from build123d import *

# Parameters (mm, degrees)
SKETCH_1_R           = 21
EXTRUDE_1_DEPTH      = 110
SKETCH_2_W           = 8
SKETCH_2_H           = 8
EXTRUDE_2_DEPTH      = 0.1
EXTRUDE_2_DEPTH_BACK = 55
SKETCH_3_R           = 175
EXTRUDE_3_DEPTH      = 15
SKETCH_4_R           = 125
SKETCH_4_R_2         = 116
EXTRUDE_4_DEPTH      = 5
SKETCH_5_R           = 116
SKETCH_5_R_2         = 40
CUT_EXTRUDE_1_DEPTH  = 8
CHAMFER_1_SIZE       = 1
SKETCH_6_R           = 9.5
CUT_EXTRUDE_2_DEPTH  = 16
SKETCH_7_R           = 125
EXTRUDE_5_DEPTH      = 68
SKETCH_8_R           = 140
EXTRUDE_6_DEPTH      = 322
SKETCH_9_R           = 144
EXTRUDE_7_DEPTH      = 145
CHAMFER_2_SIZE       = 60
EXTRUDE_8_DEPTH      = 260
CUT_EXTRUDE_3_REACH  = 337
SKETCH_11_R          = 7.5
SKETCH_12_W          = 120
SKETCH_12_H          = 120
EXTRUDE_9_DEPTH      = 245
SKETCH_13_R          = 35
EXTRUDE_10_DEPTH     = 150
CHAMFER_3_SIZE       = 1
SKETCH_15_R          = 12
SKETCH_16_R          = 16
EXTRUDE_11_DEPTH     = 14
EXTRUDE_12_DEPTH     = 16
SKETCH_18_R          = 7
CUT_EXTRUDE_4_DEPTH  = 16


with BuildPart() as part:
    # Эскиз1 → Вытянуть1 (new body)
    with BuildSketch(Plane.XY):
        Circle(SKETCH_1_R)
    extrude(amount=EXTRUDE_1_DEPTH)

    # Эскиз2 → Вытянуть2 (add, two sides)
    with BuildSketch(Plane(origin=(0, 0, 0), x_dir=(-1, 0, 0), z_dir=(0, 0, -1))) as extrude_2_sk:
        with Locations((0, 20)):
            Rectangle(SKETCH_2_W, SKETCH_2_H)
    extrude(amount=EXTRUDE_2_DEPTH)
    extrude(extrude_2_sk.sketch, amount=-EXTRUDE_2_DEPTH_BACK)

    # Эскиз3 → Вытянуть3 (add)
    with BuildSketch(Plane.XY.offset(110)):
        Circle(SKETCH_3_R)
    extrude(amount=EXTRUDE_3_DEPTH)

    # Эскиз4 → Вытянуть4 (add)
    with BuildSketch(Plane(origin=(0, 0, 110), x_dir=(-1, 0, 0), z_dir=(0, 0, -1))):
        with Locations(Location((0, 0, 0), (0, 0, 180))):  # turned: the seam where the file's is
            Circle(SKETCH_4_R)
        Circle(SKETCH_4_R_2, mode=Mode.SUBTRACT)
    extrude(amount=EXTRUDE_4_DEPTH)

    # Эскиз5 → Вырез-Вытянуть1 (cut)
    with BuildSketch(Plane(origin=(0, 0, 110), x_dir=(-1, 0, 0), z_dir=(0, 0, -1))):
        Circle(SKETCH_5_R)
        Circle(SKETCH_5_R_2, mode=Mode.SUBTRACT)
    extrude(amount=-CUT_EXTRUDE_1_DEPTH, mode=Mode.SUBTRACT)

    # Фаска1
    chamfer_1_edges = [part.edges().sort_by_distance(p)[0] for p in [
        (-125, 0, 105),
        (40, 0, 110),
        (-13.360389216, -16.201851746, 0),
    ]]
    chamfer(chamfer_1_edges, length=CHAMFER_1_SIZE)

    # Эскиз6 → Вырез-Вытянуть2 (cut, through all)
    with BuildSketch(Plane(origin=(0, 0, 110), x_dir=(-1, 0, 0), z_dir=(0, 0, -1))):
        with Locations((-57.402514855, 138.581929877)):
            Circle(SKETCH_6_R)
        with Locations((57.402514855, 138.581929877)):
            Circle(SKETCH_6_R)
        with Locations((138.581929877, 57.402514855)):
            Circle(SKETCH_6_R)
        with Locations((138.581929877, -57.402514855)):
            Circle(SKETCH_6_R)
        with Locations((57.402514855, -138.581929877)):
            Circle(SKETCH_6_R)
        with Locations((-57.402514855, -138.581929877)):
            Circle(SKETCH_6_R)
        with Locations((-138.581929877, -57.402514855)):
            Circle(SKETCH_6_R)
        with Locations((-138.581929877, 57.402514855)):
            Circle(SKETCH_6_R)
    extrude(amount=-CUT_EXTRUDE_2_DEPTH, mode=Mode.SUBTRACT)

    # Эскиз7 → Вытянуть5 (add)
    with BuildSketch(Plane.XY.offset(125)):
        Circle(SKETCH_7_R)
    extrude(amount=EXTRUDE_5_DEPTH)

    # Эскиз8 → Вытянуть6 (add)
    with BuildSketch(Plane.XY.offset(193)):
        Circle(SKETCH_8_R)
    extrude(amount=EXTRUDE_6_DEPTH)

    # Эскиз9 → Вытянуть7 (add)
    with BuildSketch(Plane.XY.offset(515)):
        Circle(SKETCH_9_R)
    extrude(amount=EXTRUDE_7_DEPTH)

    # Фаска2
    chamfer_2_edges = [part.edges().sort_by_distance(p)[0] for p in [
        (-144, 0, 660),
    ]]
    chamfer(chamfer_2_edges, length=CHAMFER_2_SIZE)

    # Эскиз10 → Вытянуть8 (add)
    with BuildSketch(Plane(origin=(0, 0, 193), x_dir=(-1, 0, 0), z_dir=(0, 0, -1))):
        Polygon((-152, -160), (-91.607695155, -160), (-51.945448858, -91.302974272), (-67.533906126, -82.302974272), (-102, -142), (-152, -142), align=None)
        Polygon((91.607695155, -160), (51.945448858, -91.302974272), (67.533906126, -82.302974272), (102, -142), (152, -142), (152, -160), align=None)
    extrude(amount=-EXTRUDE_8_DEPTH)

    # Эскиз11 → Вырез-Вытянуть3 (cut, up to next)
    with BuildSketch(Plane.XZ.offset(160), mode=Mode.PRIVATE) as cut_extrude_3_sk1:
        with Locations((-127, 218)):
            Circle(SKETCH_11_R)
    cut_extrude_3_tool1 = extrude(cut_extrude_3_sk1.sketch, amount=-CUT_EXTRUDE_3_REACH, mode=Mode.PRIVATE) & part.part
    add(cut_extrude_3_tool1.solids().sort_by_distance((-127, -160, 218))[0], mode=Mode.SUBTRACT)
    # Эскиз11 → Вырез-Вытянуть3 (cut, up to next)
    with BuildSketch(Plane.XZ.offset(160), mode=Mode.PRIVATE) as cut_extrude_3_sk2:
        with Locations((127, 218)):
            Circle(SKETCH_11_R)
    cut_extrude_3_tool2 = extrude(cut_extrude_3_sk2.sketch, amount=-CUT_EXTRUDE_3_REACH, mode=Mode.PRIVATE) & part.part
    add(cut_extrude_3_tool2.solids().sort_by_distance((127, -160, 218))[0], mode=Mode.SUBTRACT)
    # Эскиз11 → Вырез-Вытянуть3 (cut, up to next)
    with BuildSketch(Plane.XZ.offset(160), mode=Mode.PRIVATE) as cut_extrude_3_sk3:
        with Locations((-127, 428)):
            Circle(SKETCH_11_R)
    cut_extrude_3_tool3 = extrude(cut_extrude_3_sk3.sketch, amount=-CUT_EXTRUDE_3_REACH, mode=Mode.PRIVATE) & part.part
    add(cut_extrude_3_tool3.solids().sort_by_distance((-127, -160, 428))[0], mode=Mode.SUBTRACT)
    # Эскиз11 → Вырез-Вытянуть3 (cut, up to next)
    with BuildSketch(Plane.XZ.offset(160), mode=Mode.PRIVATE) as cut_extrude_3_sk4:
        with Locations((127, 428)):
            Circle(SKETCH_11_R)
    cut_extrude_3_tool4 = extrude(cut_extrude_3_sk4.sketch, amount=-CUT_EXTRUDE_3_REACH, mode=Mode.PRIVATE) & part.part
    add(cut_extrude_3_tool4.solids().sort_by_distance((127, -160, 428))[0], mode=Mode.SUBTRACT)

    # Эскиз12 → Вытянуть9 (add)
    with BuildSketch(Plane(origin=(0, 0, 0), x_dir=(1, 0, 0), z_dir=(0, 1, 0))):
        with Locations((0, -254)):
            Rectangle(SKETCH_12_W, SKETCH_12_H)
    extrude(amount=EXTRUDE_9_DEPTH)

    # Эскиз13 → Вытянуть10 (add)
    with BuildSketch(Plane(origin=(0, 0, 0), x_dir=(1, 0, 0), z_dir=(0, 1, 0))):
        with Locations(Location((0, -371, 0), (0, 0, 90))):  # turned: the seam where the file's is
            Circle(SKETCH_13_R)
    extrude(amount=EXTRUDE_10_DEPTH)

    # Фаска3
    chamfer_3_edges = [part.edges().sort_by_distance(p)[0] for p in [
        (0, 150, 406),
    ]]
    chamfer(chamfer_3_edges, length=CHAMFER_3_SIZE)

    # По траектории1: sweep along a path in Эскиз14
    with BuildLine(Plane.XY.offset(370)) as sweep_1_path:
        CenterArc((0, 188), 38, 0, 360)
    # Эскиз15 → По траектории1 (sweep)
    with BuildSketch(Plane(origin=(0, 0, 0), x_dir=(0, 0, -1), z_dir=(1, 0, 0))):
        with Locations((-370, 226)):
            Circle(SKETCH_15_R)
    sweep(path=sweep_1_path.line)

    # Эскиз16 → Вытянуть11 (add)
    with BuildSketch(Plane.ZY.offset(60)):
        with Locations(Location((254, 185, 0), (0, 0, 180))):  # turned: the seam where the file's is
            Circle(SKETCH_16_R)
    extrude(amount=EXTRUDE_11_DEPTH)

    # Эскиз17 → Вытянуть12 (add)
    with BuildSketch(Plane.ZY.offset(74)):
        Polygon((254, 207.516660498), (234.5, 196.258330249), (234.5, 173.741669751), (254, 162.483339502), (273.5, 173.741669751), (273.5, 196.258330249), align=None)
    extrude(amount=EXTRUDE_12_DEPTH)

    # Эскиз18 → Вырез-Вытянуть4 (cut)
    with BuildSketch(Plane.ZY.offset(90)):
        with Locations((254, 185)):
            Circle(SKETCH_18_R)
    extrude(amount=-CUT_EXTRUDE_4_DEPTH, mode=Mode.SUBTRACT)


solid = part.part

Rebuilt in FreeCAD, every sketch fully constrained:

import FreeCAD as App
import Part
import Sketcher

V = App.Vector
Q = App.Units.Quantity


def edges_at(feature, points):
    """Names of the edges that pass closest to the given points."""
    edges = feature.Shape.Edges
    near = lambda p: min(range(len(edges)), key=lambda i: edges[i].distToShape(Part.Vertex(*p))[0])
    return sorted({f"Edge{near(p) + 1}" for p in points})


def add_polygon(sketch, points):
    """Adds a closed chain of lines whose ends are joined by coincident constraints."""
    first, n = sketch.GeometryCount, len(points)
    for a, b in zip(points, points[1:] + points[:1]):
        sketch.addGeometry(Part.LineSegment(App.Vector(*a, 0), App.Vector(*b, 0)), False)
    for i in range(n):
        sketch.addConstraint(Sketcher.Constraint("Coincident", first + i, 2, first + (i + 1) % n, 1))

doc = App.newDocument("Part")
body = doc.addObject("PartDesign::Body", "Body")

# Sketch on XY plane
sketch1 = body.newObject("Sketcher::SketchObject", "Sketch")
sketch1.AttachmentSupport = (doc.getObject("XY_Plane"), [""])
sketch1.MapMode = "FlatFace"
sketch1.addGeometry(Part.Circle(V(0, 0, 0), V(0, 0, 1), 21), False)
sketch1.addConstraint([
    Sketcher.Constraint("Coincident", 0, 3, -1, 1),
    Sketcher.Constraint("Diameter", 0, Q("42 mm")),
])
pad1 = body.newObject("PartDesign::Pad", "Pad")
pad1.Profile = sketch1
pad1.Length = 110

# Sketch on XY plane
sketch2 = body.newObject("Sketcher::SketchObject", "Sketch001")
sketch2.AttachmentSupport = (doc.getObject("XY_Plane"), [""])
sketch2.MapMode = "FlatFace"
add_polygon(sketch2, [(4, 24), (4, 16), (-4, 16), (-4, 24)])  # lines 0-3
sketch2.addConstraint([
    Sketcher.Constraint("Vertical", 0),
    Sketcher.Constraint("Horizontal", 1),
    Sketcher.Constraint("Vertical", 2),
    Sketcher.Constraint("Horizontal", 3),
    Sketcher.Constraint("Equal", 3, 0),
    Sketcher.Constraint("DistanceX", 1, 2, 1, 1, Q("8 mm")),
    Sketcher.Constraint("DistanceX", -1, 1, 0, 2, Q("4 mm")),
    Sketcher.Constraint("DistanceY", -1, 1, 0, 2, Q("16 mm")),
])
pad2 = body.newObject("PartDesign::Pad", "Pad001")
pad2.Profile = sketch2
pad2.Type = "TwoLengths"
pad2.Length = 0.1
pad2.Length2 = 55
pad2.Reversed = True

# Sketch on XY plane
sketch3 = body.newObject("Sketcher::SketchObject", "Sketch002")
sketch3.AttachmentSupport = (doc.getObject("XY_Plane"), [""])
sketch3.MapMode = "FlatFace"
sketch3.AttachmentOffset = App.Placement(V(0, 0, 110), App.Rotation())
sketch3.addGeometry(Part.Circle(V(0, 0, 0), V(0, 0, 1), 175), False)
sketch3.addConstraint([
    Sketcher.Constraint("Coincident", 0, 3, -1, 1),
    Sketcher.Constraint("Diameter", 0, Q("350 mm")),
])
pad3 = body.newObject("PartDesign::Pad", "Pad002")
pad3.Profile = sketch3
pad3.Length = 15

# Sketch on XY plane
sketch4 = body.newObject("Sketcher::SketchObject", "Sketch003")
sketch4.AttachmentSupport = (doc.getObject("XY_Plane"), [""])
sketch4.MapMode = "FlatFace"
sketch4.AttachmentOffset = App.Placement(V(0, 0, 110), App.Rotation())
sketch4.addGeometry([
    Part.Circle(V(0, 0, 0), V(0, 0, 1), 125),
    Part.Circle(V(0, 0, 0), V(0, 0, 1), 116),
], False)
sketch4.addConstraint([
    Sketcher.Constraint("Coincident", 0, 3, -1, 1),
    Sketcher.Constraint("Coincident", 1, 3, -1, 1),
    Sketcher.Constraint("Diameter", 0, Q("250 mm")),
    Sketcher.Constraint("Diameter", 1, Q("232 mm")),
])
pad4 = body.newObject("PartDesign::Pad", "Pad003")
pad4.Profile = sketch4
pad4.Length = 5
pad4.Reversed = True

# Sketch on XY plane
sketch5 = body.newObject("Sketcher::SketchObject", "Sketch004")
sketch5.AttachmentSupport = (doc.getObject("XY_Plane"), [""])
sketch5.MapMode = "FlatFace"
sketch5.AttachmentOffset = App.Placement(V(0, 0, 110), App.Rotation())
sketch5.addGeometry([
    Part.Circle(V(0, 0, 0), V(0, 0, 1), 116),
    Part.Circle(V(0, 0, 0), V(0, 0, 1), 40),
], False)
sketch5.addConstraint([
    Sketcher.Constraint("Coincident", 0, 3, -1, 1),
    Sketcher.Constraint("Coincident", 1, 3, -1, 1),
    Sketcher.Constraint("Diameter", 0, Q("232 mm")),
    Sketcher.Constraint("Diameter", 1, Q("80 mm")),
])
pocket1 = body.newObject("PartDesign::Pocket", "Pocket")
pocket1.Profile = sketch5
pocket1.Length = 8
pocket1.Reversed = True
doc.recompute()

chamfer = body.newObject("PartDesign::Chamfer", "Chamfer")
chamfer.Base = (pocket1, edges_at(pocket1, [(-125, 0, 105), (40, 0, 110), (-13.36, -16.202, 0)]))
chamfer.Size = 1

# Sketch on XY plane
sketch6 = body.newObject("Sketcher::SketchObject", "Sketch005")
sketch6.AttachmentSupport = (doc.getObject("XY_Plane"), [""])
sketch6.MapMode = "FlatFace"
sketch6.AttachmentOffset = App.Placement(V(0, 0, 110), App.Rotation())
sketch6.addGeometry([
    Part.Circle(V(57, 139, 0), V(0, 0, 1), 10),  # 0
    Part.Circle(V(-57, 139, 0), V(0, 0, 1), 10),  # 1
    Part.Circle(V(-139, 57, 0), V(0, 0, 1), 10),  # 2
    Part.Circle(V(-139, -57, 0), V(0, 0, 1), 10),  # 3
    Part.Circle(V(-57, -139, 0), V(0, 0, 1), 10),  # 4
    Part.Circle(V(57, -139, 0), V(0, 0, 1), 10),  # 5
    Part.Circle(V(139, -57, 0), V(0, 0, 1), 10),  # 6
    Part.Circle(V(139, 57, 0), V(0, 0, 1), 10),  # 7
], False)
sketch6.addConstraint([
    Sketcher.Constraint("Equal", 0, 1),
    Sketcher.Constraint("Equal", 1, 2),
    Sketcher.Constraint("Equal", 2, 3),
    Sketcher.Constraint("Equal", 3, 4),
    Sketcher.Constraint("Equal", 4, 5),
    Sketcher.Constraint("Equal", 5, 6),
    Sketcher.Constraint("Equal", 6, 7),
    Sketcher.Constraint("Symmetric", 0, 3, 4, 3, -1, 1),
    Sketcher.Constraint("Symmetric", 1, 3, 5, 3, -1, 1),
    Sketcher.Constraint("Symmetric", 2, 3, 6, 3, -1, 1),
    Sketcher.Constraint("Symmetric", 3, 3, 7, 3, -1, 1),
    Sketcher.Constraint("Symmetric", 0, 3, 1, 3, -2),
    Sketcher.Constraint("Symmetric", 3, 3, 6, 3, -2),
    Sketcher.Constraint("Diameter", 0, Q("19 mm")),
    Sketcher.Constraint("DistanceY", -1, 1, 0, 3, Q("138.58193 mm")),
    Sketcher.Constraint("DistanceX", 2, 3, -1, 1, Q("138.58193 mm")),
    Sketcher.Constraint("DistanceX", 1, 3, 0, 3, Q("114.80503 mm")),
    Sketcher.Constraint("DistanceY", 3, 3, 2, 3, Q("114.80503 mm")),
])
pocket2 = body.newObject("PartDesign::Pocket", "Pocket001")
pocket2.Profile = sketch6
pocket2.Type = "ThroughAll"
pocket2.Reversed = True

# Sketch on XY plane
sketch7 = body.newObject("Sketcher::SketchObject", "Sketch006")
sketch7.AttachmentSupport = (doc.getObject("XY_Plane"), [""])
sketch7.MapMode = "FlatFace"
sketch7.AttachmentOffset = App.Placement(V(0, 0, 125), App.Rotation())
sketch7.addGeometry(Part.Circle(V(0, 0, 0), V(0, 0, 1), 125), False)
sketch7.addConstraint([
    Sketcher.Constraint("Coincident", 0, 3, -1, 1),
    Sketcher.Constraint("Diameter", 0, Q("250 mm")),
])
pad5 = body.newObject("PartDesign::Pad", "Pad004")
pad5.Profile = sketch7
pad5.Length = 68

# Sketch on XY plane
sketch8 = body.newObject("Sketcher::SketchObject", "Sketch007")
sketch8.AttachmentSupport = (doc.getObject("XY_Plane"), [""])
sketch8.MapMode = "FlatFace"
sketch8.AttachmentOffset = App.Placement(V(0, 0, 193), App.Rotation())
sketch8.addGeometry(Part.Circle(V(0, 0, 0), V(0, 0, 1), 140), False)
sketch8.addConstraint([
    Sketcher.Constraint("Coincident", 0, 3, -1, 1),
    Sketcher.Constraint("Diameter", 0, Q("280 mm")),
])
pad6 = body.newObject("PartDesign::Pad", "Pad005")
pad6.Profile = sketch8
pad6.Length = 322

# Sketch on XY plane
sketch9 = body.newObject("Sketcher::SketchObject", "Sketch008")
sketch9.AttachmentSupport = (doc.getObject("XY_Plane"), [""])
sketch9.MapMode = "FlatFace"
sketch9.AttachmentOffset = App.Placement(V(0, 0, 515), App.Rotation())
sketch9.addGeometry(Part.Circle(V(0, 0, 0), V(0, 0, 1), 144), False)
sketch9.addConstraint([
    Sketcher.Constraint("Coincident", 0, 3, -1, 1),
    Sketcher.Constraint("Diameter", 0, Q("288 mm")),
])
pad7 = body.newObject("PartDesign::Pad", "Pad006")
pad7.Profile = sketch9
pad7.Length = 145
doc.recompute()

chamfer2 = body.newObject("PartDesign::Chamfer", "Chamfer001")
chamfer2.Base = (pad7, edges_at(pad7, [(-144, 0, 660)]))
chamfer2.Size = 60

# Sketch on XY plane
sketch10 = body.newObject("Sketcher::SketchObject", "Sketch009")
sketch10.AttachmentSupport = (doc.getObject("XY_Plane"), [""])
sketch10.MapMode = "FlatFace"
sketch10.AttachmentOffset = App.Placement(V(0, 0, 193), App.Rotation())
add_polygon(sketch10, [(152, -160), (92, -160), (52, -91), (68, -82), (102, -142), (152, -142)])  # lines 0-5
add_polygon(sketch10, [(-52, -91), (-92, -160), (-152, -160), (-152, -142), (-102, -142), (-68, -82)])  # lines 6-11
sketch10.addConstraint([
    Sketcher.Constraint("Horizontal", 0),
    Sketcher.Constraint("Horizontal", 4),
    Sketcher.Constraint("Vertical", 5),
    Sketcher.Constraint("Horizontal", 7),
    Sketcher.Constraint("Vertical", 8),
    Sketcher.Constraint("Horizontal", 9),
    Sketcher.Constraint("Symmetric", 0, 2, 6, 2, -2),
    Sketcher.Constraint("Symmetric", 4, 2, 8, 2, -2),
    Sketcher.Constraint("Symmetric", 2, 2, 10, 2, -2),
    Sketcher.Constraint("Symmetric", 1, 2, 11, 2, -2),
    Sketcher.Constraint("Perpendicular", 1, 2),
    Sketcher.Constraint("Perpendicular", 2, 3),
    Sketcher.Constraint("Parallel", 6, 10),
    Sketcher.Constraint("DistanceX", 4, 1, 4, 2, Q("50 mm")),
    Sketcher.Constraint("DistanceY", 5, 2, 5, 1, Q("18 mm")),
    Sketcher.Constraint("Angle", 1, Q("120 deg")),
    Sketcher.Constraint("Distance", 2, Q("18 mm")),
    Sketcher.Constraint("DistanceY", 0, 2, -1, 1, Q("160 mm")),
    Sketcher.Constraint("DistanceX", -1, 1, 3, 2, Q("102 mm")),
    Sketcher.Constraint("DistanceX", 6, 2, 2, 2, Q("159.141601 mm")),
])
pad8 = body.newObject("PartDesign::Pad", "Pad007")
pad8.Profile = sketch10
pad8.Length = 260

# Sketch on XZ plane
sketch11 = body.newObject("Sketcher::SketchObject", "Sketch010")
sketch11.AttachmentSupport = (doc.getObject("XZ_Plane"), [""])
sketch11.MapMode = "FlatFace"
sketch11.AttachmentOffset = App.Placement(V(0, 0, 160), App.Rotation())
sketch11.addGeometry(Part.Circle(V(-127, 218, 0), V(0, 0, 1), 8), False)
sketch11.addConstraint([
    Sketcher.Constraint("Diameter", 0, Q("15 mm")),
    Sketcher.Constraint("DistanceX", 0, 3, -1, 1, Q("127 mm")),
    Sketcher.Constraint("DistanceY", -1, 1, 0, 3, Q("218 mm")),
])
pocket3 = body.newObject("PartDesign::Pocket", "Pocket002")
pocket3.Profile = sketch11
pocket3.Type = "UpToFirst"

# Sketch on XZ plane
sketch12 = body.newObject("Sketcher::SketchObject", "Sketch011")
sketch12.AttachmentSupport = (doc.getObject("XZ_Plane"), [""])
sketch12.MapMode = "FlatFace"
sketch12.AttachmentOffset = App.Placement(V(0, 0, 160), App.Rotation())
sketch12.addGeometry(Part.Circle(V(127, 218, 0), V(0, 0, 1), 8), False)
sketch12.addConstraint([
    Sketcher.Constraint("Diameter", 0, Q("15 mm")),
    Sketcher.Constraint("DistanceX", -1, 1, 0, 3, Q("127 mm")),
    Sketcher.Constraint("DistanceY", -1, 1, 0, 3, Q("218 mm")),
])
pocket4 = body.newObject("PartDesign::Pocket", "Pocket003")
pocket4.Profile = sketch12
pocket4.Type = "UpToFirst"

# Sketch on XZ plane
sketch13 = body.newObject("Sketcher::SketchObject", "Sketch012")
sketch13.AttachmentSupport = (doc.getObject("XZ_Plane"), [""])
sketch13.MapMode = "FlatFace"
sketch13.AttachmentOffset = App.Placement(V(0, 0, 160), App.Rotation())
sketch13.addGeometry(Part.Circle(V(-127, 428, 0), V(0, 0, 1), 8), False)
sketch13.addConstraint([
    Sketcher.Constraint("Diameter", 0, Q("15 mm")),
    Sketcher.Constraint("DistanceX", 0, 3, -1, 1, Q("127 mm")),
    Sketcher.Constraint("DistanceY", -1, 1, 0, 3, Q("428 mm")),
])
pocket5 = body.newObject("PartDesign::Pocket", "Pocket004")
pocket5.Profile = sketch13
pocket5.Type = "UpToFirst"

# Sketch on XZ plane
sketch14 = body.newObject("Sketcher::SketchObject", "Sketch013")
sketch14.AttachmentSupport = (doc.getObject("XZ_Plane"), [""])
sketch14.MapMode = "FlatFace"
sketch14.AttachmentOffset = App.Placement(V(0, 0, 160), App.Rotation())
sketch14.addGeometry(Part.Circle(V(127, 428, 0), V(0, 0, 1), 8), False)
sketch14.addConstraint([
    Sketcher.Constraint("Diameter", 0, Q("15 mm")),
    Sketcher.Constraint("DistanceX", -1, 1, 0, 3, Q("127 mm")),
    Sketcher.Constraint("DistanceY", -1, 1, 0, 3, Q("428 mm")),
])
pocket6 = body.newObject("PartDesign::Pocket", "Pocket005")
pocket6.Profile = sketch14
pocket6.Type = "UpToFirst"

# Sketch on XZ plane
sketch15 = body.newObject("Sketcher::SketchObject", "Sketch014")
sketch15.AttachmentSupport = (doc.getObject("XZ_Plane"), [""])
sketch15.MapMode = "FlatFace"
add_polygon(sketch15, [(-60, 194), (-60, 314), (60, 314), (60, 194)])  # lines 0-3
sketch15.addConstraint([
    Sketcher.Constraint("Vertical", 0),
    Sketcher.Constraint("Horizontal", 1),
    Sketcher.Constraint("Vertical", 2),
    Sketcher.Constraint("Horizontal", 3),
    Sketcher.Constraint("Equal", 3, 0),
    Sketcher.Constraint("DistanceX", 1, 1, 1, 2, Q("120 mm")),
    Sketcher.Constraint("DistanceX", 0, 2, -1, 1, Q("60 mm")),
    Sketcher.Constraint("DistanceY", -1, 1, 0, 2, Q("314 mm")),
])
pad9 = body.newObject("PartDesign::Pad", "Pad008")
pad9.Profile = sketch15
pad9.Length = 245
pad9.Reversed = True

# Sketch on XZ plane
sketch16 = body.newObject("Sketcher::SketchObject", "Sketch015")
sketch16.AttachmentSupport = (doc.getObject("XZ_Plane"), [""])
sketch16.MapMode = "FlatFace"
sketch16.addGeometry(Part.Circle(V(0, 371, 0), V(0, 0, 1), 35), False)
sketch16.addConstraint([
    Sketcher.Constraint("PointOnObject", 0, 3, -2),
    Sketcher.Constraint("Diameter", 0, Q("70 mm")),
    Sketcher.Constraint("DistanceY", -1, 1, 0, 3, Q("371 mm")),
])
pad10 = body.newObject("PartDesign::Pad", "Pad009")
pad10.Profile = sketch16
pad10.Length = 150
pad10.Reversed = True
doc.recompute()

chamfer3 = body.newObject("PartDesign::Chamfer", "Chamfer002")
chamfer3.Base = (pad10, edges_at(pad10, [(0, 150, 406)]))
chamfer3.Size = 1

# Sketch on YZ plane
sketch17 = body.newObject("Sketcher::SketchObject", "Sketch016")
sketch17.AttachmentSupport = (doc.getObject("YZ_Plane"), [""])
sketch17.MapMode = "FlatFace"
sketch17.addGeometry(Part.Circle(V(226, 370, 0), V(0, 0, 1), 12), False)
sketch17.addConstraint([
    Sketcher.Constraint("Diameter", 0, Q("24 mm")),
    Sketcher.Constraint("DistanceX", -1, 1, 0, 3, Q("226 mm")),
    Sketcher.Constraint("DistanceY", -1, 1, 0, 3, Q("370 mm")),
])

# Sketch on XY plane
sketch18 = body.newObject("Sketcher::SketchObject", "Sketch017")
sketch18.AttachmentSupport = (doc.getObject("XY_Plane"), [""])
sketch18.MapMode = "FlatFace"
sketch18.AttachmentOffset = App.Placement(V(0, 0, 370), App.Rotation())
sketch18.addGeometry(Part.Circle(V(0, 188, 0), V(0, 0, 1), 38), False)
sketch18.addConstraint([
    Sketcher.Constraint("PointOnObject", 0, 3, -2),
    Sketcher.Constraint("Diameter", 0, Q("76 mm")),
    Sketcher.Constraint("DistanceY", -1, 1, 0, 3, Q("188 mm")),
])
doc.recompute()

additivepipe = body.newObject("PartDesign::AdditivePipe", "AdditivePipe")
additivepipe.Profile = sketch17
additivepipe.Spine = (sketch18, ["Edge1"])

# Sketch on YZ plane
sketch19 = body.newObject("Sketcher::SketchObject", "Sketch018")
sketch19.AttachmentSupport = (doc.getObject("YZ_Plane"), [""])
sketch19.MapMode = "FlatFace"
sketch19.AttachmentOffset = App.Placement(V(0, 0, -60), App.Rotation())
sketch19.addGeometry(Part.Circle(V(185, 254, 0), V(0, 0, 1), 16), False)
sketch19.addConstraint([
    Sketcher.Constraint("Diameter", 0, Q("32 mm")),
    Sketcher.Constraint("DistanceX", -1, 1, 0, 3, Q("185 mm")),
    Sketcher.Constraint("DistanceY", -1, 1, 0, 3, Q("254 mm")),
])
pad11 = body.newObject("PartDesign::Pad", "Pad010")
pad11.Profile = sketch19
pad11.Length = 14
pad11.Reversed = True

# Sketch on YZ plane
sketch20 = body.newObject("Sketcher::SketchObject", "Sketch019")
sketch20.AttachmentSupport = (doc.getObject("YZ_Plane"), [""])
sketch20.MapMode = "FlatFace"
sketch20.AttachmentOffset = App.Placement(V(0, 0, -74), App.Rotation())
add_polygon(sketch20, [(208, 254), (196, 234), (174, 234), (162, 254), (174, 274), (196, 274)])  # lines 0-5
sketch20.addConstraint([
    Sketcher.Constraint("Horizontal", 1),
    Sketcher.Constraint("Horizontal", 4),
    Sketcher.Constraint("Parallel", 0, 3),
    Sketcher.Constraint("Parallel", 2, 5),
    Sketcher.Constraint("Horizontal", 2, 2, 5, 2),
    Sketcher.Constraint("Vertical", 1, 2, 3, 2),
    Sketcher.Constraint("Vertical", 0, 2, 4, 2),
    Sketcher.Constraint("Angle", 0, Q("-120 deg")),
    Sketcher.Constraint("DistanceY", -1, 1, 2, 2, Q("254 mm")),
    Sketcher.Constraint("DistanceY", 1, 2, 3, 2, Q("39 mm")),
    Sketcher.Constraint("DistanceX", 1, 2, 1, 1, Q("22.51666 mm")),
    Sketcher.Constraint("DistanceX", -1, 1, 0, 2, Q("196.25833 mm")),
])
pad12 = body.newObject("PartDesign::Pad", "Pad011")
pad12.Profile = sketch20
pad12.Length = 16
pad12.Reversed = True

# Sketch on YZ plane
sketch21 = body.newObject("Sketcher::SketchObject", "Sketch020")
sketch21.AttachmentSupport = (doc.getObject("YZ_Plane"), [""])
sketch21.MapMode = "FlatFace"
sketch21.AttachmentOffset = App.Placement(V(0, 0, -90), App.Rotation())
sketch21.addGeometry(Part.Circle(V(185, 254, 0), V(0, 0, 1), 7), False)
sketch21.addConstraint([
    Sketcher.Constraint("Diameter", 0, Q("14 mm")),
    Sketcher.Constraint("DistanceX", -1, 1, 0, 3, Q("185 mm")),
    Sketcher.Constraint("DistanceY", -1, 1, 0, 3, Q("254 mm")),
])
pocket7 = body.newObject("PartDesign::Pocket", "Pocket006")
pocket7.Profile = sketch21
pocket7.Length = 16
pocket7.Reversed = True

doc.recompute()
